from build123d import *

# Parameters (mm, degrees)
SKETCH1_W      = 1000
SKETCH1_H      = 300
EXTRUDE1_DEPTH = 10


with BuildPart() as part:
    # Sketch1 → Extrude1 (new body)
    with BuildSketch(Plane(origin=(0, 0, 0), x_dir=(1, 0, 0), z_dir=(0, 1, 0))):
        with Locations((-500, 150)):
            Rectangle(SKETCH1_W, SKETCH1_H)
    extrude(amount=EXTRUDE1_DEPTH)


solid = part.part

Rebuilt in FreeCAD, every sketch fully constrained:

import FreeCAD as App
import Part
import Sketcher
from FreeCAD import Vector
Q = App.Units.Quantity


def add_polygon(sketch, points):
    """Adds a closed chain of lines whose ends are joined by coincident constraints."""
    first, n = sketch.GeometryCount, len(points)
    for a, b in zip(points, points[1:] + points[:1]):
        sketch.addGeometry(Part.LineSegment(App.Vector(*a, 0), App.Vector(*b, 0)), False)
    for i in range(n):
        sketch.addConstraint(Sketcher.Constraint("Coincident", first + i, 2, first + (i + 1) % n, 1))

doc = App.newDocument("Part")
params = doc.addObject("Spreadsheet::Sheet", "Params")
for row, (alias, value) in enumerate([
    ("sketch1_width", "1000 mm"),
    ("sketch1_height", "300 mm"),
    ("pad1_length", "10 mm"),
], start=1):
    params.set(f"A{row}", alias)
    params.set(f"B{row}", "=" + value)
    params.setAlias(f"B{row}", alias)

body = doc.addObject("PartDesign::Body", "Body")

# Sketch on XZ plane
sketch1 = doc.addObject("Sketcher::SketchObject", "Sketch")
body.addObject(sketch1)
sketch1.AttachmentSupport = (doc.XZ_Plane, [""])
sketch1.MapMode = "FlatFace"
add_polygon(sketch1, [(-1000, -300), (-1000, 0), (0, 0), (0, -300)])  # lines 0-3
sketch1.addConstraint(Sketcher.Constraint("Vertical", 0))
sketch1.addConstraint(Sketcher.Constraint("Horizontal", 1))
sketch1.addConstraint(Sketcher.Constraint("Vertical", 2))
sketch1.addConstraint(Sketcher.Constraint("Horizontal", 3))
sketch1.addConstraint(Sketcher.Constraint("Coincident", 1, 2, -1, 1))
sketch1.addConstraint(Sketcher.Constraint("DistanceX", 1, 1, 1, 2, Q("1000 mm")))
sketch1.addConstraint(Sketcher.Constraint("DistanceY", 0, 1, 0, 2, Q("300 mm")))
sketch1.setExpression("Constraints[9]", "Params.sketch1_width")
sketch1.setExpression("Constraints[10]", "Params.sketch1_height")
pad1 = doc.addObject("PartDesign::Pad", "Pad")
body.addObject(pad1)
pad1.Profile = sketch1
pad1.setExpression("Length", "Params.pad1_length")
pad1.Reversed = True

doc.recompute()
